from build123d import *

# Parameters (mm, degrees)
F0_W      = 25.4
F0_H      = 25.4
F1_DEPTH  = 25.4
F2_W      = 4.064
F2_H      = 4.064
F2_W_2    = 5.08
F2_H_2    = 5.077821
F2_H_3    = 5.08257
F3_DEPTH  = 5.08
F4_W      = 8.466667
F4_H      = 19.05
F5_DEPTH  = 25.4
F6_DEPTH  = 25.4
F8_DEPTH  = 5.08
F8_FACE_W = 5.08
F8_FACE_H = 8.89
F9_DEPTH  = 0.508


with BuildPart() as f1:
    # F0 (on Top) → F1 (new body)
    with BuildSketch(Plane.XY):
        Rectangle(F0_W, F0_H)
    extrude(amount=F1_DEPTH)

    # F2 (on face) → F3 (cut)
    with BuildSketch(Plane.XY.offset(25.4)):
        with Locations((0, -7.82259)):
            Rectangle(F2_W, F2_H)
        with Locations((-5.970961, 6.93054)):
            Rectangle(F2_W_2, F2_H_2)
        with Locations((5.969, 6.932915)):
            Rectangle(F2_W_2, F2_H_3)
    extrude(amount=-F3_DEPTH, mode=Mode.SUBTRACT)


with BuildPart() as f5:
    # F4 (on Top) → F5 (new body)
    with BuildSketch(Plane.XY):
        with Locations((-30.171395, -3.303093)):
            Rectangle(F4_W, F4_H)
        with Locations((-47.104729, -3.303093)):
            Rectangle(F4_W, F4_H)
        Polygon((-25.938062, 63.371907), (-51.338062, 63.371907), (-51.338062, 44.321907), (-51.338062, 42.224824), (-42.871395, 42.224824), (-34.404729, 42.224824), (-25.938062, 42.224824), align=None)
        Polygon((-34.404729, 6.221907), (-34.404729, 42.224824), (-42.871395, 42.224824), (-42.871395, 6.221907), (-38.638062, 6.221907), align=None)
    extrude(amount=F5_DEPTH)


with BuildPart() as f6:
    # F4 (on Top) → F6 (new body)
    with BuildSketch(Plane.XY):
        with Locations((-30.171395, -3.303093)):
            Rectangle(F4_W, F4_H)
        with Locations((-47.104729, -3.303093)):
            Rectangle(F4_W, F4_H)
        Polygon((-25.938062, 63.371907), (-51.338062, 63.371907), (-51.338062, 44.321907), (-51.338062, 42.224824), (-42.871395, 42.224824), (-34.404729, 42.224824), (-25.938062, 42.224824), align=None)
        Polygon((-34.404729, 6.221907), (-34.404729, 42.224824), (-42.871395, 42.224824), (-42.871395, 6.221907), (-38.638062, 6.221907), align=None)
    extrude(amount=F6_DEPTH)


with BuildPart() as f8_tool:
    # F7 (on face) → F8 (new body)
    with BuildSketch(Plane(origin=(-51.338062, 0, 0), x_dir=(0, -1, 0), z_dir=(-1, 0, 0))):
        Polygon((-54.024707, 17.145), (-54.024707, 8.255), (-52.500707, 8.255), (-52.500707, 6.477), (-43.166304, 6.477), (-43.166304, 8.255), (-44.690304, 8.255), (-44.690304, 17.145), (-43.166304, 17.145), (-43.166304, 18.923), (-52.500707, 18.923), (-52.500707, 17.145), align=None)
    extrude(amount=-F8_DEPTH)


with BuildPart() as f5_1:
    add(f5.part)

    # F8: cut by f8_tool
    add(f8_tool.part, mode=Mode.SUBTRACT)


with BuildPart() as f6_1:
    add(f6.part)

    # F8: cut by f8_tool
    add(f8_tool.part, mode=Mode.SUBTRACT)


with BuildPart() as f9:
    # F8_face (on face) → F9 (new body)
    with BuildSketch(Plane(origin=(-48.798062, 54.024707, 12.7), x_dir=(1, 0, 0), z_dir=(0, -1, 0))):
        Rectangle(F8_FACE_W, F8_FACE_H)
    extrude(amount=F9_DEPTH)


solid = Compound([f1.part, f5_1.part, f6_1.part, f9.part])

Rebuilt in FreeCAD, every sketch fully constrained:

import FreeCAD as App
import Part
import Sketcher
Q = App.Units.Quantity

doc = App.newDocument("Part")
body = doc.addObject("PartDesign::Body", "Body")

# Sketch on XY plane
sketch1 = body.newObject("Sketcher::SketchObject", "Sketch")
sketch1.AttachmentSupport = (doc.getObject("XY_Plane"), [""])
sketch1.MapMode = "FlatFace"
sketch1.addGeometry([
    Part.LineSegment(App.Vector(-13, 13, 0), App.Vector(-13, -13, 0)),
    Part.LineSegment(App.Vector(-13, -13, 0), App.Vector(13, -13, 0)),
    Part.LineSegment(App.Vector(13, -13, 0), App.Vector(13, 13, 0)),
    Part.LineSegment(App.Vector(13, 13, 0), App.Vector(-13, 13, 0)),
], False)
sketch1.addConstraint([
    Sketcher.Constraint("Coincident", 0, 2, 1, 1),
    Sketcher.Constraint("Coincident", 1, 2, 2, 1),
    Sketcher.Constraint("Coincident", 2, 2, 3, 1),
    Sketcher.Constraint("Coincident", 3, 2, 0, 1),
    Sketcher.Constraint("Vertical", 0),
    Sketcher.Constraint("Horizontal", 1),
    Sketcher.Constraint("Vertical", 2),
    Sketcher.Constraint("Horizontal", 3),
    Sketcher.Constraint("Symmetric", 0, 2, 2, 2, -1, 1),
    Sketcher.Constraint("Equal", 3, 0),
    Sketcher.Constraint("DistanceX", 1, 1, 1, 2, Q("1 in")),
])
pad1 = body.newObject("PartDesign::Pad", "Pad")
pad1.Profile = sketch1
pad1.Length = Q("1 in")

# Sketch on XY plane
sketch2 = body.newObject("Sketcher::SketchObject", "Sketch001")
sketch2.AttachmentSupport = (doc.getObject("XY_Plane"), [""])
sketch2.MapMode = "FlatFace"
sketch2.AttachmentOffset = App.Placement(App.Vector(0, 0, 1 * 25.4), App.Rotation())
sketch2.addGeometry([
    Part.LineSegment(App.Vector(-2, -5.8, 0), App.Vector(-2, -9.9, 0)),  # 0
    Part.LineSegment(App.Vector(-2, -9.9, 0), App.Vector(2, -9.9, 0)),  # 1
    Part.LineSegment(App.Vector(2, -9.9, 0), App.Vector(2, -5.8, 0)),  # 2
    Part.LineSegment(App.Vector(2, -5.8, 0), App.Vector(-2, -5.8, 0)),  # 3
    Part.LineSegment(App.Vector(-8.5, 9.5, 0), App.Vector(-8.5, 4.4, 0)),  # 4
    Part.LineSegment(App.Vector(-8.5, 4.4, 0), App.Vector(-3.4, 4.4, 0)),  # 5
    Part.LineSegment(App.Vector(-3.4, 4.4, 0), App.Vector(-3.4, 9.5, 0)),  # 6
    Part.LineSegment(App.Vector(-3.4, 9.5, 0), App.Vector(-8.5, 9.5, 0)),  # 7
    Part.LineSegment(App.Vector(3.4, 9.5, 0), App.Vector(3.4, 4.4, 0)),  # 8
    Part.LineSegment(App.Vector(3.4, 4.4, 0), App.Vector(8.5, 4.4, 0)),  # 9
    Part.LineSegment(App.Vector(8.5, 4.4, 0), App.Vector(8.5, 9.5, 0)),  # 10
    Part.LineSegment(App.Vector(8.5, 9.5, 0), App.Vector(3.4, 9.5, 0)),  # 11
], False)
sketch2.addConstraint([
    Sketcher.Constraint("Coincident", 0, 2, 1, 1),
    Sketcher.Constraint("Coincident", 1, 2, 2, 1),
    Sketcher.Constraint("Coincident", 2, 2, 3, 1),
    Sketcher.Constraint("Coincident", 3, 2, 0, 1),
    Sketcher.Constraint("Coincident", 4, 2, 5, 1),
    Sketcher.Constraint("Coincident", 5, 2, 6, 1),
    Sketcher.Constraint("Coincident", 6, 2, 7, 1),
    Sketcher.Constraint("Coincident", 7, 2, 4, 1),
    Sketcher.Constraint("Coincident", 8, 2, 9, 1),
    Sketcher.Constraint("Coincident", 9, 2, 10, 1),
    Sketcher.Constraint("Coincident", 10, 2, 11, 1),
    Sketcher.Constraint("Coincident", 11, 2, 8, 1),
    Sketcher.Constraint("Vertical", 0),
    Sketcher.Constraint("Horizontal", 1),
    Sketcher.Constraint("Vertical", 2),
    Sketcher.Constraint("Horizontal", 3),
    Sketcher.Constraint("Vertical", 4),
    Sketcher.Constraint("Horizontal", 5),
    Sketcher.Constraint("Vertical", 6),
    Sketcher.Constraint("Horizontal", 7),
    Sketcher.Constraint("Vertical", 8),
    Sketcher.Constraint("Horizontal", 9),
    Sketcher.Constraint("Vertical", 10),
    Sketcher.Constraint("Horizontal", 11),
    Sketcher.Constraint("Horizontal", 5, 2, 8, 2),
    Sketcher.Constraint("Equal", 7, 9),
    Sketcher.Constraint("Equal", 3, 0),
    Sketcher.Constraint("DistanceX", 5, 1, 5, 2, Q("0.2 in")),
    Sketcher.Constraint("DistanceX", 1, 1, 1, 2, Q("0.16 in")),
    Sketcher.Constraint("DistanceX", 0, 2, -1, 1, Q("0.08 in")),
    Sketcher.Constraint("DistanceX", -1, 1, 8, 2, Q("0.135 in")),
    Sketcher.Constraint("DistanceY", -1, 1, 10, 2, Q("0.373 in")),
    Sketcher.Constraint("DistanceY", 4, 2, 4, 1, 5.077821),
    Sketcher.Constraint("DistanceY", 8, 2, 8, 1, 5.08257),
    Sketcher.Constraint("DistanceY", 0, 2, -1, 1, 9.85459),
    Sketcher.Constraint("DistanceX", 4, 2, -1, 1, 8.510961),
])
pocket1 = body.newObject("PartDesign::Pocket", "Pocket")
pocket1.Profile = sketch2
pocket1.Length = Q("0.2 in")
body2 = doc.addObject("PartDesign::Body", "Body001")
body2.AllowCompound = True

# Sketch on XY plane
sketch3 = body2.newObject("Sketcher::SketchObject", "Sketch002")
sketch3.AttachmentSupport = (doc.getObject("XY_Plane001"), [""])
sketch3.MapMode = "FlatFace"
sketch3.addGeometry([
    Part.LineSegment(App.Vector(-34, 6, 0), App.Vector(-34, -13, 0)),  # 0
    Part.LineSegment(App.Vector(-34, -13, 0), App.Vector(-26, -13, 0)),  # 1
    Part.LineSegment(App.Vector(-26, -13, 0), App.Vector(-26, 6, 0)),  # 2
    Part.LineSegment(App.Vector(-26, 6, 0), App.Vector(-34, 6, 0)),  # 3
    Part.LineSegment(App.Vector(-51, 6, 0), App.Vector(-51, -13, 0)),  # 4
    Part.LineSegment(App.Vector(-51, -13, 0), App.Vector(-43, -13, 0)),  # 5
    Part.LineSegment(App.Vector(-43, -13, 0), App.Vector(-43, 6, 0)),  # 6
    Part.LineSegment(App.Vector(-43, 6, 0), App.Vector(-51, 6, 0)),  # 7
    Part.LineSegment(App.Vector(-26, 63, 0), App.Vector(-51, 63, 0)),  # 8
    Part.LineSegment(App.Vector(-51, 63, 0), App.Vector(-51, 42, 0)),  # 9
    Part.LineSegment(App.Vector(-51, 42, 0), App.Vector(-43, 42, 0)),  # 10
    Part.LineSegment(App.Vector(-43, 42, 0), App.Vector(-43, 6, 0)),  # 11
    Part.LineSegment(App.Vector(-43, 6, 0), App.Vector(-34, 6, 0)),  # 12
    Part.LineSegment(App.Vector(-34, 6, 0), App.Vector(-34, 42, 0)),  # 13
    Part.LineSegment(App.Vector(-34, 42, 0), App.Vector(-26, 42, 0)),  # 14
    Part.LineSegment(App.Vector(-26, 42, 0), App.Vector(-26, 63, 0)),  # 15
], False)
sketch3.addConstraint([
    Sketcher.Constraint("Coincident", 0, 2, 1, 1),
    Sketcher.Constraint("Coincident", 1, 2, 2, 1),
    Sketcher.Constraint("Coincident", 2, 2, 3, 1),
    Sketcher.Constraint("Coincident", 3, 2, 0, 1),
    Sketcher.Constraint("Coincident", 4, 2, 5, 1),
    Sketcher.Constraint("Coincident", 5, 2, 6, 1),
    Sketcher.Constraint("Coincident", 6, 2, 7, 1),
    Sketcher.Constraint("Coincident", 7, 2, 4, 1),
    Sketcher.Constraint("Coincident", 8, 2, 9, 1),
    Sketcher.Constraint("Coincident", 9, 2, 10, 1),
    Sketcher.Constraint("Coincident", 10, 2, 11, 1),
    Sketcher.Constraint("Coincident", 11, 2, 12, 1),
    Sketcher.Constraint("Coincident", 12, 2, 13, 1),
    Sketcher.Constraint("Coincident", 13, 2, 14, 1),
    Sketcher.Constraint("Coincident", 14, 2, 15, 1),
    Sketcher.Constraint("Coincident", 15, 2, 8, 1),
    Sketcher.Constraint("Vertical", 0),
    Sketcher.Constraint("Horizontal", 1),
    Sketcher.Constraint("Vertical", 2),
    Sketcher.Constraint("Horizontal", 3),
    Sketcher.Constraint("Vertical", 4),
    Sketcher.Constraint("Horizontal", 5),
    Sketcher.Constraint("Vertical", 6),
    Sketcher.Constraint("Horizontal", 7),
    Sketcher.Constraint("Horizontal", 8),
    Sketcher.Constraint("Vertical", 9),
    Sketcher.Constraint("Horizontal", 10),
    Sketcher.Constraint("Vertical", 11),
    Sketcher.Constraint("Horizontal", 12),
    Sketcher.Constraint("Vertical", 13),
    Sketcher.Constraint("Horizontal", 14),
    Sketcher.Constraint("Vertical", 15),
    Sketcher.Constraint("Coincident", 11, 2, 6, 2),
    Sketcher.Constraint("Coincident", 12, 2, 3, 2),
    Sketcher.Constraint("Horizontal", 1, 2, 4, 2),
    Sketcher.Constraint("Horizontal", 10, 2, 13, 2),
    Sketcher.Constraint("Vertical", 7, 2, 8, 2),
    Sketcher.Constraint("Vertical", 2, 2, 14, 2),
    Sketcher.Constraint("Equal", 3, 5),
    Sketcher.Constraint("Equal", 10, 12),
    Sketcher.Constraint("DistanceX", 8, 2, 8, 1, Q("1 in")),
    Sketcher.Constraint("DistanceY", 4, 2, 8, 2, Q("3 in")),
    Sketcher.Constraint("DistanceY", 0, 2, 0, 1, Q("0.75 in")),
    Sketcher.Constraint("DistanceY", 9, 2, 9, 1, 21.147083),
    Sketcher.Constraint("DistanceX", 0, 2, -1, 1, 34.404728),
    Sketcher.Constraint("DistanceY", 0, 2, -1, 1, 12.828093),
])
pad2 = body2.newObject("PartDesign::Pad", "Pad001")
pad2.Profile = sketch3
pad2.Length = Q("1 in")
body3 = doc.addObject("PartDesign::Body", "Body002")
body3.AllowCompound = True

# Sketch on XY plane
sketch4 = body3.newObject("Sketcher::SketchObject", "Sketch003")
sketch4.AttachmentSupport = (doc.getObject("XY_Plane002"), [""])
sketch4.MapMode = "FlatFace"
sketch4.addGeometry([
    Part.LineSegment(App.Vector(-34, 6, 0), App.Vector(-34, -13, 0)),  # 0
    Part.LineSegment(App.Vector(-34, -13, 0), App.Vector(-26, -13, 0)),  # 1
    Part.LineSegment(App.Vector(-26, -13, 0), App.Vector(-26, 6, 0)),  # 2
    Part.LineSegment(App.Vector(-26, 6, 0), App.Vector(-34, 6, 0)),  # 3
    Part.LineSegment(App.Vector(-51, 6, 0), App.Vector(-51, -13, 0)),  # 4
    Part.LineSegment(App.Vector(-51, -13, 0), App.Vector(-43, -13, 0)),  # 5
    Part.LineSegment(App.Vector(-43, -13, 0), App.Vector(-43, 6, 0)),  # 6
    Part.LineSegment(App.Vector(-43, 6, 0), App.Vector(-51, 6, 0)),  # 7
    Part.LineSegment(App.Vector(-26, 63, 0), App.Vector(-51, 63, 0)),  # 8
    Part.LineSegment(App.Vector(-51, 63, 0), App.Vector(-51, 42, 0)),  # 9
    Part.LineSegment(App.Vector(-51, 42, 0), App.Vector(-43, 42, 0)),  # 10
    Part.LineSegment(App.Vector(-43, 42, 0), App.Vector(-43, 6, 0)),  # 11
    Part.LineSegment(App.Vector(-43, 6, 0), App.Vector(-34, 6, 0)),  # 12
    Part.LineSegment(App.Vector(-34, 6, 0), App.Vector(-34, 42, 0)),  # 13
    Part.LineSegment(App.Vector(-34, 42, 0), App.Vector(-26, 42, 0)),  # 14
    Part.LineSegment(App.Vector(-26, 42, 0), App.Vector(-26, 63, 0)),  # 15
], False)
sketch4.addConstraint([
    Sketcher.Constraint("Coincident", 0, 2, 1, 1),
    Sketcher.Constraint("Coincident", 1, 2, 2, 1),
    Sketcher.Constraint("Coincident", 2, 2, 3, 1),
    Sketcher.Constraint("Coincident", 3, 2, 0, 1),
    Sketcher.Constraint("Coincident", 4, 2, 5, 1),
    Sketcher.Constraint("Coincident", 5, 2, 6, 1),
    Sketcher.Constraint("Coincident", 6, 2, 7, 1),
    Sketcher.Constraint("Coincident", 7, 2, 4, 1),
    Sketcher.Constraint("Coincident", 8, 2, 9, 1),
    Sketcher.Constraint("Coincident", 9, 2, 10, 1),
    Sketcher.Constraint("Coincident", 10, 2, 11, 1),
    Sketcher.Constraint("Coincident", 11, 2, 12, 1),
    Sketcher.Constraint("Coincident", 12, 2, 13, 1),
    Sketcher.Constraint("Coincident", 13, 2, 14, 1),
    Sketcher.Constraint("Coincident", 14, 2, 15, 1),
    Sketcher.Constraint("Coincident", 15, 2, 8, 1),
    Sketcher.Constraint("Vertical", 0),
    Sketcher.Constraint("Horizontal", 1),
    Sketcher.Constraint("Vertical", 2),
    Sketcher.Constraint("Horizontal", 3),
    Sketcher.Constraint("Vertical", 4),
    Sketcher.Constraint("Horizontal", 5),
    Sketcher.Constraint("Vertical", 6),
    Sketcher.Constraint("Horizontal", 7),
    Sketcher.Constraint("Horizontal", 8),
    Sketcher.Constraint("Vertical", 9),
    Sketcher.Constraint("Horizontal", 10),
    Sketcher.Constraint("Vertical", 11),
    Sketcher.Constraint("Horizontal", 12),
    Sketcher.Constraint("Vertical", 13),
    Sketcher.Constraint("Horizontal", 14),
    Sketcher.Constraint("Vertical", 15),
    Sketcher.Constraint("Coincident", 11, 2, 6, 2),
    Sketcher.Constraint("Coincident", 12, 2, 3, 2),
    Sketcher.Constraint("Horizontal", 1, 2, 4, 2),
    Sketcher.Constraint("Horizontal", 10, 2, 13, 2),
    Sketcher.Constraint("Vertical", 7, 2, 8, 2),
    Sketcher.Constraint("Vertical", 2, 2, 14, 2),
    Sketcher.Constraint("Equal", 3, 5),
    Sketcher.Constraint("Equal", 10, 12),
    Sketcher.Constraint("DistanceX", 8, 2, 8, 1, Q("1 in")),
    Sketcher.Constraint("DistanceY", 4, 2, 8, 2, Q("3 in")),
    Sketcher.Constraint("DistanceY", 0, 2, 0, 1, Q("0.75 in")),
    Sketcher.Constraint("DistanceY", 9, 2, 9, 1, 21.147083),
    Sketcher.Constraint("DistanceX", 0, 2, -1, 1, 34.404728),
    Sketcher.Constraint("DistanceY", 0, 2, -1, 1, 12.828093),
])
pad3 = body3.newObject("PartDesign::Pad", "Pad002")
pad3.Profile = sketch4
pad3.Length = Q("1 in")
body4 = doc.addObject("PartDesign::Body", "Body003")

# Sketch on YZ plane
sketch5 = body4.newObject("Sketcher::SketchObject", "Sketch004")
sketch5.AttachmentSupport = (doc.getObject("YZ_Plane003"), [""])
sketch5.MapMode = "FlatFace"
sketch5.AttachmentOffset = App.Placement(App.Vector(0, 0, -51.338062), App.Rotation())
sketch5.addGeometry([
    Part.LineSegment(App.Vector(54, 17.1, 0), App.Vector(54, 8.3, 0)),  # 0
    Part.LineSegment(App.Vector(54, 8.3, 0), App.Vector(52.5, 8.3, 0)),  # 1
    Part.LineSegment(App.Vector(52.5, 8.3, 0), App.Vector(52.5, 6.5, 0)),  # 2
    Part.LineSegment(App.Vector(52.5, 6.5, 0), App.Vector(43.2, 6.5, 0)),  # 3
    Part.LineSegment(App.Vector(43.2, 6.5, 0), App.Vector(43.2, 8.3, 0)),  # 4
    Part.LineSegment(App.Vector(43.2, 8.3, 0), App.Vector(44.7, 8.3, 0)),  # 5
    Part.LineSegment(App.Vector(44.7, 8.3, 0), App.Vector(44.7, 17.1, 0)),  # 6
    Part.LineSegment(App.Vector(44.7, 17.1, 0), App.Vector(43.2, 17.1, 0)),  # 7
    Part.LineSegment(App.Vector(43.2, 17.1, 0), App.Vector(43.2, 18.9, 0)),  # 8
    Part.LineSegment(App.Vector(43.2, 18.9, 0), App.Vector(52.5, 18.9, 0)),  # 9
    Part.LineSegment(App.Vector(52.5, 18.9, 0), App.Vector(52.5, 17.1, 0)),  # 10
    Part.LineSegment(App.Vector(52.5, 17.1, 0), App.Vector(54, 17.1, 0)),  # 11
], False)
sketch5.addConstraint([
    Sketcher.Constraint("Coincident", 0, 2, 1, 1),
    Sketcher.Constraint("Coincident", 1, 2, 2, 1),
    Sketcher.Constraint("Coincident", 2, 2, 3, 1),
    Sketcher.Constraint("Coincident", 3, 2, 4, 1),
    Sketcher.Constraint("Coincident", 4, 2, 5, 1),
    Sketcher.Constraint("Coincident", 5, 2, 6, 1),
    Sketcher.Constraint("Coincident", 6, 2, 7, 1),
    Sketcher.Constraint("Coincident", 7, 2, 8, 1),
    Sketcher.Constraint("Coincident", 8, 2, 9, 1),
    Sketcher.Constraint("Coincident", 9, 2, 10, 1),
    Sketcher.Constraint("Coincident", 10, 2, 11, 1),
    Sketcher.Constraint("Coincident", 11, 2, 0, 1),
    Sketcher.Constraint("Vertical", 0),
    Sketcher.Constraint("Horizontal", 1),
    Sketcher.Constraint("Vertical", 2),
    Sketcher.Constraint("Horizontal", 3),
    Sketcher.Constraint("Vertical", 4),
    Sketcher.Constraint("Horizontal", 5),
    Sketcher.Constraint("Vertical", 6),
    Sketcher.Constraint("Horizontal", 7),
    Sketcher.Constraint("Vertical", 8),
    Sketcher.Constraint("Horizontal", 9),
    Sketcher.Constraint("Vertical", 10),
    Sketcher.Constraint("Horizontal", 11),
    Sketcher.Constraint("Horizontal", 1, 2, 4, 2),
    Sketcher.Constraint("Horizontal", 7, 2, 10, 2),
    Sketcher.Constraint("Vertical", 4, 2, 7, 2),
    Sketcher.Constraint("Vertical", 2, 2, 9, 2),
    Sketcher.Constraint("Equal", 1, 5),
    Sketcher.Constraint("Equal", 4, 8),
    Sketcher.Constraint("DistanceX", 1, 2, 1, 1, Q("0.06 in")),
    Sketcher.Constraint("DistanceY", 0, 2, 0, 1, Q("0.35 in")),
    Sketcher.Constraint("DistanceY", 2, 2, 2, 1, Q("0.07 in")),
    Sketcher.Constraint("DistanceY", -1, 1, 0, 2, Q("0.325 in")),
    Sketcher.Constraint("DistanceX", 3, 2, 3, 1, 9.334403),
    Sketcher.Constraint("DistanceX", -1, 1, 0, 2, 54.024707),
])
pad4 = body4.newObject("PartDesign::Pad", "Pad003")
pad4.Profile = sketch5
pad4.Length = Q("0.2 in")
body2.AllowCompound = True
doc.recompute()

body5 = doc.addObject("PartDesign::Body", "Body004")
body5.BaseFeature = body4
boolean = body2.newObject("PartDesign::Boolean", "Boolean")
boolean.Type = "Cut"
boolean.addObjects([body5])
doc.recompute()
body3.AllowCompound = True
doc.recompute()

boolean2 = body3.newObject("PartDesign::Boolean", "Boolean001")
boolean2.Type = "Cut"
boolean2.addObjects([body4])
body6 = doc.addObject("PartDesign::Body", "Body005")

# Sketch on XZ plane
sketch6 = body6.newObject("Sketcher::SketchObject", "Sketch005")
sketch6.AttachmentSupport = (doc.getObject("XZ_Plane005"), [""])
sketch6.MapMode = "FlatFace"
sketch6.AttachmentOffset = App.Placement(App.Vector(0, 0, -54.024707), App.Rotation())
sketch6.addGeometry([
    Part.LineSegment(App.Vector(-51, 17, 0), App.Vector(-51, 8, 0)),
    Part.LineSegment(App.Vector(-51, 8, 0), App.Vector(-46, 8, 0)),
    Part.LineSegment(App.Vector(-46, 8, 0), App.Vector(-46, 17, 0)),
    Part.LineSegment(App.Vector(-46, 17, 0), App.Vector(-51, 17, 0)),
], False)
sketch6.addConstraint([
    Sketcher.Constraint("Coincident", 0, 2, 1, 1),
    Sketcher.Constraint("Coincident", 1, 2, 2, 1),
    Sketcher.Constraint("Coincident", 2, 2, 3, 1),
    Sketcher.Constraint("Coincident", 3, 2, 0, 1),
    Sketcher.Constraint("Vertical", 0),
    Sketcher.Constraint("Horizontal", 1),
    Sketcher.Constraint("Vertical", 2),
    Sketcher.Constraint("Horizontal", 3),
    Sketcher.Constraint("DistanceX", 1, 1, 1, 2, Q("0.2 in")),
    Sketcher.Constraint("DistanceY", 0, 2, 0, 1, Q("0.35 in")),
    Sketcher.Constraint("DistanceY", -1, 1, 0, 2, Q("0.325 in")),
    Sketcher.Constraint("DistanceX", 0, 2, -1, 1, 51.338062),
])
pad5 = body6.newObject("PartDesign::Pad", "Pad004")
pad5.Profile = sketch6
pad5.Length = Q("0.02 in")

doc.recompute()
